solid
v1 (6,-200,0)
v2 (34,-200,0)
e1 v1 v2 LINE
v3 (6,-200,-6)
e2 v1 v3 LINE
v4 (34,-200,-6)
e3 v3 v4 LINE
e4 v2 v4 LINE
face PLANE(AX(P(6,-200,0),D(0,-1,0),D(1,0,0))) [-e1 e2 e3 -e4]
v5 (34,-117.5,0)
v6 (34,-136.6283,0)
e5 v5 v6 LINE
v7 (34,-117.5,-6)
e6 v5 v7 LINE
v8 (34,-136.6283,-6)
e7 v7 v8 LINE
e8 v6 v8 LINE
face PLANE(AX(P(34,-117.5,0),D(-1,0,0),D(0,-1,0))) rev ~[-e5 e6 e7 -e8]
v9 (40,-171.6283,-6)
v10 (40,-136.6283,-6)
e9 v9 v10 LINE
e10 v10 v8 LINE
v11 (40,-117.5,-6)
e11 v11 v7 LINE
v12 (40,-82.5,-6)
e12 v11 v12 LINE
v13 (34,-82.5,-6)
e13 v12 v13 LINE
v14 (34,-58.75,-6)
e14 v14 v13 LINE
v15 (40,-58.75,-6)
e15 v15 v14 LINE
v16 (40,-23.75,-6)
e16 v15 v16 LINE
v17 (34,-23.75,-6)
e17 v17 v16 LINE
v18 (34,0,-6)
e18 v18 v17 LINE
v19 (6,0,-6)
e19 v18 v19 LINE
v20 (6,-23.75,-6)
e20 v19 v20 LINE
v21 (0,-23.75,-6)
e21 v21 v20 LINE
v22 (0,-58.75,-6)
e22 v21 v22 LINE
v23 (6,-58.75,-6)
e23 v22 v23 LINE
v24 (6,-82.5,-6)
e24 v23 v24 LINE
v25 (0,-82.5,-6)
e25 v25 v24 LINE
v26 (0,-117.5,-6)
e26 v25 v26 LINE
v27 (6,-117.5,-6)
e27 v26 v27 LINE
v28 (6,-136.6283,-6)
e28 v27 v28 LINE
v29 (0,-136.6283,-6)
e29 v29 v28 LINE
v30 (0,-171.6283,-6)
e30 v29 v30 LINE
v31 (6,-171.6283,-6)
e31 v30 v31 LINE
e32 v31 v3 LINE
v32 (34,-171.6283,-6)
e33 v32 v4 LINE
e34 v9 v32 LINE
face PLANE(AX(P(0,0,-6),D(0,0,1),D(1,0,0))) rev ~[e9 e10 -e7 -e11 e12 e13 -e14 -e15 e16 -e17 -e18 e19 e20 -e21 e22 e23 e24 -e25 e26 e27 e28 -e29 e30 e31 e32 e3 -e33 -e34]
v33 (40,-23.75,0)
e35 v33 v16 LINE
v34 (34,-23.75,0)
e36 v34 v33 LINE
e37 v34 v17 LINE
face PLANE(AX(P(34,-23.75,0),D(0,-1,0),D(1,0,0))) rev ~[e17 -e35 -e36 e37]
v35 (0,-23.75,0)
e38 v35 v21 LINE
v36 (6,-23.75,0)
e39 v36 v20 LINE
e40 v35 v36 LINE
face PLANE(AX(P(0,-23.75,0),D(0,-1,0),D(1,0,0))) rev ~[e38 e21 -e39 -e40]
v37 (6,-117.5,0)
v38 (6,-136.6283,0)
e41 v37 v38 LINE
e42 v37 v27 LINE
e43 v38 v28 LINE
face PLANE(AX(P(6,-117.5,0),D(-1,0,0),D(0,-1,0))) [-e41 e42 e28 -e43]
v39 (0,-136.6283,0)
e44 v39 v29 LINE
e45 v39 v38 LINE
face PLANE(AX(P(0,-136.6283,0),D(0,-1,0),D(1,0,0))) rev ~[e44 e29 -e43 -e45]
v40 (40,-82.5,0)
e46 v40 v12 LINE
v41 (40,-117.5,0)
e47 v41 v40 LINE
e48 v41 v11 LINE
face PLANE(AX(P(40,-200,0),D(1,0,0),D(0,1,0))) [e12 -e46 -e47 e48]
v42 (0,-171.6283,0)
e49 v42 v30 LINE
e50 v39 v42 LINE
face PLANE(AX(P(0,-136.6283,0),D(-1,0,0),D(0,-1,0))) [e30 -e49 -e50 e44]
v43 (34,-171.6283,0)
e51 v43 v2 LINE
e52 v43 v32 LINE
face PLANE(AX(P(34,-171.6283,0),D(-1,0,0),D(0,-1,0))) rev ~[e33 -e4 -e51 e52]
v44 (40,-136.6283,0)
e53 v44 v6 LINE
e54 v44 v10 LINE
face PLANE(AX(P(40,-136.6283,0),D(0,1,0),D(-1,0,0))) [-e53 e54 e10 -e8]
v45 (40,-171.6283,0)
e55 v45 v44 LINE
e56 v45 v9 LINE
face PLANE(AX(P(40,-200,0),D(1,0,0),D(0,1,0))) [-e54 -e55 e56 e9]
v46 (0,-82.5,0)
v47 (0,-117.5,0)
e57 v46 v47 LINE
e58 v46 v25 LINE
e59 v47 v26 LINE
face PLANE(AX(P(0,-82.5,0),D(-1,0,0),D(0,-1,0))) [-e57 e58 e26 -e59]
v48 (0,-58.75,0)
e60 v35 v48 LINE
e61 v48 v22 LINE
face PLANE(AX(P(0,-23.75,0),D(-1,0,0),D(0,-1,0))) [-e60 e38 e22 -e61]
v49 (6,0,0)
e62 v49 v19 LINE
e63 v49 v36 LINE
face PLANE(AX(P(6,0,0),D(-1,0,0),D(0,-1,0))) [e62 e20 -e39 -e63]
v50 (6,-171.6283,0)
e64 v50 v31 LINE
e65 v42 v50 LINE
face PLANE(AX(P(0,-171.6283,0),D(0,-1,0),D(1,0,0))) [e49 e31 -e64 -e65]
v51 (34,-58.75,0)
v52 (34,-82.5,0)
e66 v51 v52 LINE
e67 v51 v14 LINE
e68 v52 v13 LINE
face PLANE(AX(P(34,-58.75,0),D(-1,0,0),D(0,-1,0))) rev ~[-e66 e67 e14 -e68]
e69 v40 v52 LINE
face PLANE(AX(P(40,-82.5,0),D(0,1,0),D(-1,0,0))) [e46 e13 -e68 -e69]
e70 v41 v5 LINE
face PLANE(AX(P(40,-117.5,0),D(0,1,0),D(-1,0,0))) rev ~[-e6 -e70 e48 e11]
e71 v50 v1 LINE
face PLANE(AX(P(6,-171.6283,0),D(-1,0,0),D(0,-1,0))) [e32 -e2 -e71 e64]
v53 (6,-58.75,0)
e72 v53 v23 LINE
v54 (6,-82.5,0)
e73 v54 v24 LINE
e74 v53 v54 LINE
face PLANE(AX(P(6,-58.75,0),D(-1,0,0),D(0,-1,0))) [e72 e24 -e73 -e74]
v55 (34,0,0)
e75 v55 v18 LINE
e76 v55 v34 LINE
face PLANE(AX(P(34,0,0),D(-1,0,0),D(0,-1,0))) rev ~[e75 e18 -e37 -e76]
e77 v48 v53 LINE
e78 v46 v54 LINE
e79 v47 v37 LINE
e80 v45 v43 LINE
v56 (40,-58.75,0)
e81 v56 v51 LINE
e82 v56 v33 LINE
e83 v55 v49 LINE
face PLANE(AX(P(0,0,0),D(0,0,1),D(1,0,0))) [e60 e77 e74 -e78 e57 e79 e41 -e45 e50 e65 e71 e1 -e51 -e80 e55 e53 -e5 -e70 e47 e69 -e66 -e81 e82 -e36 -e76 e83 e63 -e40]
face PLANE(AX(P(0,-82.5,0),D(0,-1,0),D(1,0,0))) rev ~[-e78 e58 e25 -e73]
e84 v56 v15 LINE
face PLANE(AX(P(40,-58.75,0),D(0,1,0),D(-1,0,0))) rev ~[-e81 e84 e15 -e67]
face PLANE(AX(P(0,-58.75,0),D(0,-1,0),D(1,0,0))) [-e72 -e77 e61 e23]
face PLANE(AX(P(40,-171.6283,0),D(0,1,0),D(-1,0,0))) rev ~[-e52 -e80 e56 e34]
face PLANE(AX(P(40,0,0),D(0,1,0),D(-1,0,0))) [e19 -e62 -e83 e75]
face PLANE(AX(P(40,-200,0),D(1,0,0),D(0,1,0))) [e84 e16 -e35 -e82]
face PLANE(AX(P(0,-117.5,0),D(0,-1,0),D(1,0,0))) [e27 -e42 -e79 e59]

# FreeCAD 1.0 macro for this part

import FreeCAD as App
import Part
import Sketcher

V = App.Vector

doc = App.newDocument("Part")
body = doc.addObject("PartDesign::Body", "Body")

# Sketch on XY plane
sketch1 = body.newObject("Sketcher::SketchObject", "Sketch")
sketch1.AttachmentSupport = (doc.getObject("XY_Plane"), [""])
sketch1.MapMode = "FlatFace"
sketch1.addGeometry([
    Part.LineSegment(V(6, -23.75, 0), V(0, -23.75, 0)),  # 0
    Part.LineSegment(V(0, -23.75, 0), V(0, -58.75, 0)),  # 1
    Part.LineSegment(V(0, -58.75, 0), V(6, -58.75, 0)),  # 2
    Part.LineSegment(V(6, -58.75, 0), V(6, -82.5, 0)),  # 3
    Part.LineSegment(V(6, -82.5, 0), V(0, -82.5, 0)),  # 4
    Part.LineSegment(V(0, -82.5, 0), V(0, -117.5, 0)),  # 5
    Part.LineSegment(V(0, -117.5, 0), V(6, -117.5, 0)),  # 6
    Part.LineSegment(V(6, -117.5, 0), V(6, -136.6283, 0)),  # 7
    Part.LineSegment(V(6, -136.6283, 0), V(0, -136.6283, 0)),  # 8
    Part.LineSegment(V(0, -136.6283, 0), V(0, -171.6283, 0)),  # 9
    Part.LineSegment(V(0, -171.6283, 0), V(6, -171.6283, 0)),  # 10
    Part.LineSegment(V(6, -171.6283, 0), V(6, -200, 0)),  # 11
    Part.LineSegment(V(6, -200, 0), V(40, -200, 0)),  # 12
    Part.LineSegment(V(40, -200, 0), V(40, 0, 0)),  # 13
    Part.LineSegment(V(40, 0, 0), V(6, 0, 0)),  # 14
    Part.LineSegment(V(6, 0, 0), V(6, -23.75, 0)),  # 15
], False)
sketch1.addConstraint([
    Sketcher.Constraint("Coincident", 0, 2, 1, 1),
    Sketcher.Constraint("Coincident", 1, 2, 2, 1),
    Sketcher.Constraint("Coincident", 2, 2, 3, 1),
    Sketcher.Constraint("Coincident", 3, 2, 4, 1),
    Sketcher.Constraint("Coincident", 4, 2, 5, 1),
    Sketcher.Constraint("Coincident", 5, 2, 6, 1),
    Sketcher.Constraint("Coincident", 6, 2, 7, 1),
    Sketcher.Constraint("Coincident", 7, 2, 8, 1),
    Sketcher.Constraint("Coincident", 8, 2, 9, 1),
    Sketcher.Constraint("Coincident", 9, 2, 10, 1),
    Sketcher.Constraint("Coincident", 10, 2, 11, 1),
    Sketcher.Constraint("Coincident", 11, 2, 12, 1),
    Sketcher.Constraint("Coincident", 12, 2, 13, 1),
    Sketcher.Constraint("Coincident", 13, 2, 14, 1),
    Sketcher.Constraint("Coincident", 14, 2, 15, 1),
    Sketcher.Constraint("Coincident", 15, 2, 0, 1),
    Sketcher.Constraint("Horizontal", 0),
    Sketcher.Constraint("Vertical", 1),
    Sketcher.Constraint("Horizontal", 2),
    Sketcher.Constraint("Vertical", 3),
    Sketcher.Constraint("Horizontal", 4),
    Sketcher.Constraint("Vertical", 5),
    Sketcher.Constraint("Horizontal", 6),
    Sketcher.Constraint("Vertical", 7),
    Sketcher.Constraint("Horizontal", 8),
    Sketcher.Constraint("Vertical", 9),
    Sketcher.Constraint("Horizontal", 10),
    Sketcher.Constraint("Vertical", 11),
    Sketcher.Constraint("Horizontal", 12),
    Sketcher.Constraint("Vertical", 13),
    Sketcher.Constraint("Horizontal", 14),
    Sketcher.Constraint("Vertical", 15),
    Sketcher.Constraint("PointOnObject", 0, 2, -2),
    Sketcher.Constraint("PointOnObject", 4, 2, -2),
    Sketcher.Constraint("PointOnObject", 8, 2, -2),
    Sketcher.Constraint("PointOnObject", 13, 2, -1),
    Sketcher.Constraint("Vertical", 3, 2, 6, 2),
    Sketcher.Constraint("Vertical", 7, 2, 10, 2),
    Sketcher.Constraint("Vertical", 11, 2, 14, 2),
    Sketcher.Constraint("Equal", 1, 5),
    Sketcher.Constraint("Equal", 5, 9),
    Sketcher.Constraint("Equal", 3, 15),
    Sketcher.Constraint("DistanceX", 0, 2, 0, 1, 6.0),
    Sketcher.Constraint("DistanceX", 12, 1, 12, 2, 34.0),
    Sketcher.Constraint("DistanceY", 1, 2, 1, 1, 35.0),
    Sketcher.Constraint("DistanceY", 13, 1, 13, 2, 200.0),
    Sketcher.Constraint("DistanceY", 3, 2, 3, 1, 23.75),
    Sketcher.Constraint("DistanceY", 7, 2, 7, 1, 19.1283),
])
pad1 = body.newObject("PartDesign::Pad", "Pad")
pad1.Profile = sketch1
pad1.Length = 6
pad1.Reversed = True

# Sketch on XY plane
sketch2 = body.newObject("Sketcher::SketchObject", "Sketch001")
sketch2.AttachmentSupport = (doc.getObject("XY_Plane"), [""])
sketch2.MapMode = "FlatFace"
sketch2.addGeometry([
    Part.LineSegment(V(40, 0, 0), V(34, 0, 0)),  # 0
    Part.LineSegment(V(34, 0, 0), V(34, -23.75, 0)),  # 1
    Part.LineSegment(V(34, -23.75, 0), V(40, -23.75, 0)),  # 2
    Part.LineSegment(V(40, -23.75, 0), V(40, 0, 0)),  # 3
    Part.LineSegment(V(40, -136.6283, 0), V(40, -117.5, 0)),  # 4
    Part.LineSegment(V(40, -117.5, 0), V(34, -117.5, 0)),  # 5
    Part.LineSegment(V(34, -117.5, 0), V(34, -136.6283, 0)),  # 6
    Part.LineSegment(V(34, -136.6283, 0), V(40, -136.6283, 0)),  # 7
    Part.LineSegment(V(40, -82.5, 0), V(40, -58.75, 0)),  # 8
    Part.LineSegment(V(40, -58.75, 0), V(34, -58.75, 0)),  # 9
    Part.LineSegment(V(34, -58.75, 0), V(34, -82.5, 0)),  # 10
    Part.LineSegment(V(34, -82.5, 0), V(40, -82.5, 0)),  # 11
    Part.LineSegment(V(40, -200, 0), V(40, -171.6283, 0)),  # 12
    Part.LineSegment(V(40, -171.6283, 0), V(34, -171.6283, 0)),  # 13
    Part.LineSegment(V(34, -171.6283, 0), V(34, -200, 0)),  # 14
    Part.LineSegment(V(34, -200, 0), V(40, -200, 0)),  # 15
], False)
sketch2.addConstraint([
    Sketcher.Constraint("Coincident", 0, 2, 1, 1),
    Sketcher.Constraint("Coincident", 1, 2, 2, 1),
    Sketcher.Constraint("Coincident", 2, 2, 3, 1),
    Sketcher.Constraint("Coincident", 3, 2, 0, 1),
    Sketcher.Constraint("Coincident", 4, 2, 5, 1),
    Sketcher.Constraint("Coincident", 5, 2, 6, 1),
    Sketcher.Constraint("Coincident", 6, 2, 7, 1),
    Sketcher.Constraint("Coincident", 7, 2, 4, 1),
    Sketcher.Constraint("Coincident", 8, 2, 9, 1),
    Sketcher.Constraint("Coincident", 9, 2, 10, 1),
    Sketcher.Constraint("Coincident", 10, 2, 11, 1),
    Sketcher.Constraint("Coincident", 11, 2, 8, 1),
    Sketcher.Constraint("Coincident", 12, 2, 13, 1),
    Sketcher.Constraint("Coincident", 13, 2, 14, 1),
    Sketcher.Constraint("Coincident", 14, 2, 15, 1),
    Sketcher.Constraint("Coincident", 15, 2, 12, 1),
    Sketcher.Constraint("Horizontal", 0),
    Sketcher.Constraint("Vertical", 1),
    Sketcher.Constraint("Horizontal", 2),
    Sketcher.Constraint("Vertical", 3),
    Sketcher.Constraint("Vertical", 4),
    Sketcher.Constraint("Horizontal", 5),
    Sketcher.Constraint("Vertical", 6),
    Sketcher.Constraint("Horizontal", 7),
    Sketcher.Constraint("Vertical", 8),
    Sketcher.Constraint("Horizontal", 9),
    Sketcher.Constraint("Vertical", 10),
    Sketcher.Constraint("Horizontal", 11),
    Sketcher.Constraint("Vertical", 12),
    Sketcher.Constraint("Horizontal", 13),
    Sketcher.Constraint("Vertical", 14),
    Sketcher.Constraint("Horizontal", 15),
    Sketcher.Constraint("PointOnObject", 0, 2, -1),
    Sketcher.Constraint("Vertical", 3, 2, 4, 2),
    Sketcher.Constraint("Vertical", 1, 2, 5, 2),
    Sketcher.Constraint("Vertical", 7, 2, 8, 2),
    Sketcher.Constraint("Vertical", 6, 2, 9, 2),
    Sketcher.Constraint("Vertical", 11, 2, 12, 2),
    Sketcher.Constraint("Vertical", 10, 2, 13, 2),
    Sketcher.Constraint("Equal", 3, 8),
    Sketcher.Constraint("DistanceX", 0, 2, 0, 1, 6.0),
    Sketcher.Constraint("DistanceX", -1, 1, 0, 2, 34.0),
    Sketcher.Constraint("DistanceY", 14, 2, -1, 1, 200.0),
    Sketcher.Constraint("DistanceY", 8, 2, 2, 2, 35.0),
    Sketcher.Constraint("DistanceY", 5, 2, 10, 2, 35.0),
    Sketcher.Constraint("DistanceY", 12, 2, 7, 2, 35.0),
    Sketcher.Constraint("DistanceY", 1, 2, 1, 1, 23.75),
    Sketcher.Constraint("DistanceY", 4, 1, 4, 2, 19.1283),
])
pocket1 = body.newObject("PartDesign::Pocket", "Pocket")
pocket1.Profile = sketch2
pocket1.Type = "ThroughAll"

doc.recompute()
